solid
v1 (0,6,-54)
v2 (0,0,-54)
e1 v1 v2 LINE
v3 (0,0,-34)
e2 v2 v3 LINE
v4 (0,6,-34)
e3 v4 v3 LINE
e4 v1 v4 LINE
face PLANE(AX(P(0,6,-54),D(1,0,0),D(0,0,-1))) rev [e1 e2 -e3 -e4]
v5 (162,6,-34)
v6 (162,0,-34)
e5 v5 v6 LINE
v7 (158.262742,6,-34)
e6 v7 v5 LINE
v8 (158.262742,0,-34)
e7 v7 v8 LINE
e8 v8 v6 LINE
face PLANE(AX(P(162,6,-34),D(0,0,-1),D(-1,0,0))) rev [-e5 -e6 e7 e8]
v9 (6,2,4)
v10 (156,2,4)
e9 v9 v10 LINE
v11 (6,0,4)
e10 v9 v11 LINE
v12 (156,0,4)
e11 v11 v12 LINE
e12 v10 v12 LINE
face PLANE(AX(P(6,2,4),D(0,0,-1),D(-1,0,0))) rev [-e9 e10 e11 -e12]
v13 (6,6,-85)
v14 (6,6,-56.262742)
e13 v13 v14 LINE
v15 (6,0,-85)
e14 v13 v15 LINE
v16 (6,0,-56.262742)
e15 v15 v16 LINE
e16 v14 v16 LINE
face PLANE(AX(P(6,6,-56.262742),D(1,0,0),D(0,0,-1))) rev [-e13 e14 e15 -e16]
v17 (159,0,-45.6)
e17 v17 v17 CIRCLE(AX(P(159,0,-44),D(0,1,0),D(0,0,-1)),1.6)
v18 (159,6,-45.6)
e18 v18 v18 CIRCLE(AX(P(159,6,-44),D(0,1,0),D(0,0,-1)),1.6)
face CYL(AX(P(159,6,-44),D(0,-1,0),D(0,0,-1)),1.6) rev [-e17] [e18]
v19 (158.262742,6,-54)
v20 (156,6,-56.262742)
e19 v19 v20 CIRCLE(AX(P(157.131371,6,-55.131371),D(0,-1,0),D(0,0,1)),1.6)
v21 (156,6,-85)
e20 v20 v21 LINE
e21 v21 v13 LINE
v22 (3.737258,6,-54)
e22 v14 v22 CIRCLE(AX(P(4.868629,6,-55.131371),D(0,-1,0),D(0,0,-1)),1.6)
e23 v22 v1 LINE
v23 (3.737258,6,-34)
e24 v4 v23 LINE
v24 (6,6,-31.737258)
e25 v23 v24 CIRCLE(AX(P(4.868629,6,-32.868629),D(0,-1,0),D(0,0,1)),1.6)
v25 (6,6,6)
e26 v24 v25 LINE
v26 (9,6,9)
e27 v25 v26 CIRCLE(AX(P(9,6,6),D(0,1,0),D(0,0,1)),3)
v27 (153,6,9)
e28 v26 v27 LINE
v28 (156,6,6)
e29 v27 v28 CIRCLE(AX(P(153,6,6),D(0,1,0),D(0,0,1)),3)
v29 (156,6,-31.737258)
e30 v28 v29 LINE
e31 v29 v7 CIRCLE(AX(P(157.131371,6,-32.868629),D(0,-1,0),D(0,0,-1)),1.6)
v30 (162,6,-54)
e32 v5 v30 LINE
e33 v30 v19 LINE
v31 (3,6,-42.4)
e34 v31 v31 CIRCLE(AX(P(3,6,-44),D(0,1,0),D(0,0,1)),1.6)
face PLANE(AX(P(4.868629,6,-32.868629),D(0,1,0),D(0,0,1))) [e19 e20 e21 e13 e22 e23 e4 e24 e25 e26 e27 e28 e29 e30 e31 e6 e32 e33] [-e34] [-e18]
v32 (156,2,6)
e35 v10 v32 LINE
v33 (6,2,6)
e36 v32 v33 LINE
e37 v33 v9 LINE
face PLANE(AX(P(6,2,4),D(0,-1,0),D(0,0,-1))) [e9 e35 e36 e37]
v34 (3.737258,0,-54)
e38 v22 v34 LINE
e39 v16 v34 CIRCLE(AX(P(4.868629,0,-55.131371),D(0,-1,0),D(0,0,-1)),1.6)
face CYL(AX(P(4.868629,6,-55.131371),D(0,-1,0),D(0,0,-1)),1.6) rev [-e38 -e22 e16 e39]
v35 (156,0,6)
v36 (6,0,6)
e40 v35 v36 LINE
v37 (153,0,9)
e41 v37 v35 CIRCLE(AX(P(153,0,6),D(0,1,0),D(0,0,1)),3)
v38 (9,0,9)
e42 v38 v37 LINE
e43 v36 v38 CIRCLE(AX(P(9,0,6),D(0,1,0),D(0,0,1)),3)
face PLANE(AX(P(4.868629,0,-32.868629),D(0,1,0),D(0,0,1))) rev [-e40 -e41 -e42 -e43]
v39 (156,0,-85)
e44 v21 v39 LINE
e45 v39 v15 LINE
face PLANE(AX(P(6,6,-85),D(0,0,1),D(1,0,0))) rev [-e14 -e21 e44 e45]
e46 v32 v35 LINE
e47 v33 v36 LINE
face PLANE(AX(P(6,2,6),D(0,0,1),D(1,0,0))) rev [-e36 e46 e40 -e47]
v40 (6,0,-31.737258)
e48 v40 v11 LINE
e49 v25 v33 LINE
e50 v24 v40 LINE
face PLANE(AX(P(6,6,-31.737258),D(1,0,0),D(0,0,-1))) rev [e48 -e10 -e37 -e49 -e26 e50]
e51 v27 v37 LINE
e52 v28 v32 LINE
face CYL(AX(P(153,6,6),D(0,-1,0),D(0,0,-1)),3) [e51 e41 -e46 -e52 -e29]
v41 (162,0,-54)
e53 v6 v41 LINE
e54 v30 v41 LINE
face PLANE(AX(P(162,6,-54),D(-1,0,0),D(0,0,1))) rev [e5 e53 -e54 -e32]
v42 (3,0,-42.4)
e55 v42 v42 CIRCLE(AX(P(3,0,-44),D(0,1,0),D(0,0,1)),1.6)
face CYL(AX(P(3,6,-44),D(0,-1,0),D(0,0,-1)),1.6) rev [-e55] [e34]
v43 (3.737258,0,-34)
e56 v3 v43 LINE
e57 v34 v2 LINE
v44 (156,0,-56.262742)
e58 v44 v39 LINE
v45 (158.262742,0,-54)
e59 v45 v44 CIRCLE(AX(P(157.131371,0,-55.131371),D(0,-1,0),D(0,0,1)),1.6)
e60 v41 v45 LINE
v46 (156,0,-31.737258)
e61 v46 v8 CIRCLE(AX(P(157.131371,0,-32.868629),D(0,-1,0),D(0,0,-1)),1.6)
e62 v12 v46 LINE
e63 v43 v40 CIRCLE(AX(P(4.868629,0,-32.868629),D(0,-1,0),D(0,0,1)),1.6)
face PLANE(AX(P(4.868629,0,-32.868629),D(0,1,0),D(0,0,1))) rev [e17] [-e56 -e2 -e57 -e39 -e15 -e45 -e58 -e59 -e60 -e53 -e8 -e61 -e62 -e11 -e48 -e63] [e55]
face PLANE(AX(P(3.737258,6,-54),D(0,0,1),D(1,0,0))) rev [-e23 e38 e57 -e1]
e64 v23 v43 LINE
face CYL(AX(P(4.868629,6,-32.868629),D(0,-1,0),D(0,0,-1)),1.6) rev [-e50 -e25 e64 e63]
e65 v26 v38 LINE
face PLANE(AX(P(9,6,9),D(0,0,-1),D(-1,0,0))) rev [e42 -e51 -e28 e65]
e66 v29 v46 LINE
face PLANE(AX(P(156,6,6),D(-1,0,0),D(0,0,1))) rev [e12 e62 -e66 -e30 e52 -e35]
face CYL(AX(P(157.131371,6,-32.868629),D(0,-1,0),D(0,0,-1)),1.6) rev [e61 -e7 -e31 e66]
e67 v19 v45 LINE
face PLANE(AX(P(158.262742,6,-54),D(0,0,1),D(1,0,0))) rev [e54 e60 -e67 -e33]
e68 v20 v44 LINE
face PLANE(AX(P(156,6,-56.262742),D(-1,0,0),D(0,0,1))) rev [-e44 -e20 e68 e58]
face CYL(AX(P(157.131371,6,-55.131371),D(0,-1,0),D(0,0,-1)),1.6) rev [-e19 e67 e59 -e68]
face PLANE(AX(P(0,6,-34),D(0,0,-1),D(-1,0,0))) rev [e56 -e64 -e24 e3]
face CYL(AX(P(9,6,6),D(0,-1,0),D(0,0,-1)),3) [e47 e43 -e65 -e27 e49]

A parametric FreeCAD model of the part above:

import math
import FreeCAD as App
import Part
import Sketcher

V = App.Vector


def add_polygon(sketch, points):
    """Adds a closed chain of lines whose ends are joined by coincident constraints."""
    first, n = sketch.GeometryCount, len(points)
    for a, b in zip(points, points[1:] + points[:1]):
        sketch.addGeometry(Part.LineSegment(App.Vector(*a, 0), App.Vector(*b, 0)), False)
    for i in range(n):
        sketch.addConstraint(Sketcher.Constraint("Coincident", first + i, 2, first + (i + 1) % n, 1))

doc = App.newDocument("Part")
body = doc.addObject("PartDesign::Body", "Body")

# Sketch on XZ plane
sketch1 = body.newObject("Sketcher::SketchObject", "Sketch")
sketch1.AttachmentSupport = (doc.getObject("XZ_Plane"), [""])
sketch1.MapMode = "FlatFace"
sketch1.addGeometry([
    Part.LineSegment(V(6, -85, 0), V(6, -56.3, 0)),  # 0
    Part.ArcOfCircle(Part.Circle(V(4.9, -55.1, 0), V(0, 0, 1), 1.6), math.radians(-45), math.radians(135)),  # 1
    Part.LineSegment(V(3.7, -54, 0), V(0, -54, 0)),  # 2
    Part.LineSegment(V(0, -54, 0), V(0, -34, 0)),  # 3
    Part.LineSegment(V(0, -34, 0), V(3.7, -34, 0)),  # 4
    Part.ArcOfCircle(Part.Circle(V(4.9, -32.9, 0), V(0, 0, 1), 1.6), math.radians(-135), math.radians(45)),  # 5
    Part.LineSegment(V(6, -31.7, 0), V(6, 6, 0)),  # 6
    Part.ArcOfCircle(Part.Circle(V(9, 6, 0), V(0, 0, 1), 3), math.radians(90), math.radians(180)),  # 7
    Part.LineSegment(V(9, 9, 0), V(153, 9, 0)),  # 8
    Part.ArcOfCircle(Part.Circle(V(153, 6, 0), V(0, 0, 1), 3), math.radians(0), math.radians(90)),  # 9
    Part.LineSegment(V(156, 6, 0), V(156, -31.7, 0)),  # 10
    Part.ArcOfCircle(Part.Circle(V(157.1, -32.9, 0), V(0, 0, 1), 1.6), math.radians(135), math.radians(315)),  # 11
    Part.LineSegment(V(158.3, -34, 0), V(162, -34, 0)),  # 12
    Part.LineSegment(V(162, -34, 0), V(162, -54, 0)),  # 13
    Part.LineSegment(V(162, -54, 0), V(158.3, -54, 0)),  # 14
    Part.ArcOfCircle(Part.Circle(V(157.1, -55.1, 0), V(0, 0, 1), 1.6), math.radians(45), math.radians(225)),  # 15
    Part.LineSegment(V(156, -56.3, 0), V(156, -85, 0)),  # 16
    Part.LineSegment(V(156, -85, 0), V(6, -85, 0)),  # 17
    Part.Circle(V(159, -44, 0), V(0, 0, 1), 1.6),  # 18
    Part.Circle(V(3, -44, 0), V(0, 0, 1), 1.6),  # 19
], False)
sketch1.addConstraint([
    Sketcher.Constraint("Coincident", 0, 2, 1, 1),
    Sketcher.Constraint("Coincident", 1, 2, 2, 1),
    Sketcher.Constraint("Coincident", 2, 2, 3, 1),
    Sketcher.Constraint("Coincident", 3, 2, 4, 1),
    Sketcher.Constraint("Coincident", 4, 2, 5, 1),
    Sketcher.Constraint("Coincident", 5, 2, 6, 1),
    Sketcher.Constraint("Tangent", 6, 2, 7, 2),
    Sketcher.Constraint("Tangent", 7, 1, 8, 1),
    Sketcher.Constraint("Tangent", 8, 2, 9, 2),
    Sketcher.Constraint("Tangent", 9, 1, 10, 1),
    Sketcher.Constraint("Coincident", 10, 2, 11, 1),
    Sketcher.Constraint("Coincident", 11, 2, 12, 1),
    Sketcher.Constraint("Coincident", 12, 2, 13, 1),
    Sketcher.Constraint("Coincident", 13, 2, 14, 1),
    Sketcher.Constraint("Coincident", 14, 2, 15, 1),
    Sketcher.Constraint("Coincident", 15, 2, 16, 1),
    Sketcher.Constraint("Coincident", 16, 2, 17, 1),
    Sketcher.Constraint("Coincident", 17, 2, 0, 1),
    Sketcher.Constraint("Vertical", 0),
    Sketcher.Constraint("Horizontal", 2),
    Sketcher.Constraint("Vertical", 3),
    Sketcher.Constraint("Horizontal", 4),
    Sketcher.Constraint("Vertical", 6),
    Sketcher.Constraint("Horizontal", 8),
    Sketcher.Constraint("Vertical", 10),
    Sketcher.Constraint("Horizontal", 12),
    Sketcher.Constraint("Vertical", 13),
    Sketcher.Constraint("Horizontal", 14),
    Sketcher.Constraint("Vertical", 16),
    Sketcher.Constraint("Horizontal", 17),
    Sketcher.Constraint("Equal", 1, 5),
    Sketcher.Constraint("Equal", 7, 9),
    Sketcher.Constraint("Equal", 5, 11),
    Sketcher.Constraint("Equal", 11, 15),
    Sketcher.Constraint("Equal", 15, 18),
    Sketcher.Constraint("Equal", 18, 19),
    Sketcher.Constraint("PointOnObject", 2, 2, -2),
    Sketcher.Constraint("Horizontal", 5, 3, 11, 3),
    Sketcher.Constraint("Horizontal", 1, 3, 15, 3),
    Sketcher.Constraint("Horizontal", 18, 3, 19, 3),
    Sketcher.Constraint("Horizontal", 5, 2, 10, 2),
    Sketcher.Constraint("Horizontal", 4, 2, 11, 2),
    Sketcher.Constraint("Horizontal", 2, 2, 13, 2),
    Sketcher.Constraint("Horizontal", 0, 2, 15, 2),
    Sketcher.Constraint("Vertical", 1, 3, 5, 3),
    Sketcher.Constraint("Vertical", 11, 3, 15, 3),
    Sketcher.Constraint("Vertical", 1, 2, 4, 2),
    Sketcher.Constraint("Vertical", 0, 2, 5, 2),
    Sketcher.Constraint("Equal", 4, 12),
    Sketcher.Constraint("Radius", 7, 3.0),
    Sketcher.Constraint("Diameter", 18, 3.2),
    Sketcher.Constraint("DistanceX", 8, 1, 8, 2, 144.0),
    Sketcher.Constraint("DistanceY", 3, 1, 3, 2, 20.0),
    Sketcher.Constraint("DistanceX", -1, 1, 7, 3, 9.0),
    Sketcher.Constraint("DistanceY", -1, 1, 7, 3, 6.0),
    Sketcher.Constraint("DistanceX", -1, 1, 18, 3, 159.0),
    Sketcher.Constraint("DistanceY", 18, 3, -1, 1, 44.0),
    Sketcher.Constraint("DistanceX", -1, 1, 19, 3, 3.0),
    Sketcher.Constraint("DistanceY", 1, 2, -1, 1, 54.0),
    Sketcher.Constraint("DistanceY", 16, 2, -1, 1, 85.0),
    Sketcher.Constraint("DistanceX", 2, 2, 2, 1, 3.737258),
    Sketcher.Constraint("DistanceX", -1, 1, 1, 3, 4.868629),
])
pad1 = body.newObject("PartDesign::Pad", "Pad")
pad1.Profile = sketch1
pad1.Length = 6
pad1.Reversed = True

# Sketch on XZ plane
sketch2 = body.newObject("Sketcher::SketchObject", "Sketch001")
sketch2.AttachmentSupport = (doc.getObject("XZ_Plane"), [""])
sketch2.MapMode = "FlatFace"
add_polygon(sketch2, [(6, 6), (6, 4), (156, 4), (156, 6)])  # lines 0-3
sketch2.addConstraint([
    Sketcher.Constraint("Vertical", 0),
    Sketcher.Constraint("Horizontal", 1),
    Sketcher.Constraint("Vertical", 2),
    Sketcher.Constraint("Horizontal", 3),
    Sketcher.Constraint("DistanceX", 1, 1, 1, 2, 150.0),
    Sketcher.Constraint("DistanceY", 0, 2, 0, 1, 2.0),
    Sketcher.Constraint("DistanceX", -1, 1, 0, 2, 6.0),
    Sketcher.Constraint("DistanceY", -1, 1, 0, 2, 4.0),
])
pocket1 = body.newObject("PartDesign::Pocket", "Pocket")
pocket1.Profile = sketch2
pocket1.Length = 2

doc.recompute()
